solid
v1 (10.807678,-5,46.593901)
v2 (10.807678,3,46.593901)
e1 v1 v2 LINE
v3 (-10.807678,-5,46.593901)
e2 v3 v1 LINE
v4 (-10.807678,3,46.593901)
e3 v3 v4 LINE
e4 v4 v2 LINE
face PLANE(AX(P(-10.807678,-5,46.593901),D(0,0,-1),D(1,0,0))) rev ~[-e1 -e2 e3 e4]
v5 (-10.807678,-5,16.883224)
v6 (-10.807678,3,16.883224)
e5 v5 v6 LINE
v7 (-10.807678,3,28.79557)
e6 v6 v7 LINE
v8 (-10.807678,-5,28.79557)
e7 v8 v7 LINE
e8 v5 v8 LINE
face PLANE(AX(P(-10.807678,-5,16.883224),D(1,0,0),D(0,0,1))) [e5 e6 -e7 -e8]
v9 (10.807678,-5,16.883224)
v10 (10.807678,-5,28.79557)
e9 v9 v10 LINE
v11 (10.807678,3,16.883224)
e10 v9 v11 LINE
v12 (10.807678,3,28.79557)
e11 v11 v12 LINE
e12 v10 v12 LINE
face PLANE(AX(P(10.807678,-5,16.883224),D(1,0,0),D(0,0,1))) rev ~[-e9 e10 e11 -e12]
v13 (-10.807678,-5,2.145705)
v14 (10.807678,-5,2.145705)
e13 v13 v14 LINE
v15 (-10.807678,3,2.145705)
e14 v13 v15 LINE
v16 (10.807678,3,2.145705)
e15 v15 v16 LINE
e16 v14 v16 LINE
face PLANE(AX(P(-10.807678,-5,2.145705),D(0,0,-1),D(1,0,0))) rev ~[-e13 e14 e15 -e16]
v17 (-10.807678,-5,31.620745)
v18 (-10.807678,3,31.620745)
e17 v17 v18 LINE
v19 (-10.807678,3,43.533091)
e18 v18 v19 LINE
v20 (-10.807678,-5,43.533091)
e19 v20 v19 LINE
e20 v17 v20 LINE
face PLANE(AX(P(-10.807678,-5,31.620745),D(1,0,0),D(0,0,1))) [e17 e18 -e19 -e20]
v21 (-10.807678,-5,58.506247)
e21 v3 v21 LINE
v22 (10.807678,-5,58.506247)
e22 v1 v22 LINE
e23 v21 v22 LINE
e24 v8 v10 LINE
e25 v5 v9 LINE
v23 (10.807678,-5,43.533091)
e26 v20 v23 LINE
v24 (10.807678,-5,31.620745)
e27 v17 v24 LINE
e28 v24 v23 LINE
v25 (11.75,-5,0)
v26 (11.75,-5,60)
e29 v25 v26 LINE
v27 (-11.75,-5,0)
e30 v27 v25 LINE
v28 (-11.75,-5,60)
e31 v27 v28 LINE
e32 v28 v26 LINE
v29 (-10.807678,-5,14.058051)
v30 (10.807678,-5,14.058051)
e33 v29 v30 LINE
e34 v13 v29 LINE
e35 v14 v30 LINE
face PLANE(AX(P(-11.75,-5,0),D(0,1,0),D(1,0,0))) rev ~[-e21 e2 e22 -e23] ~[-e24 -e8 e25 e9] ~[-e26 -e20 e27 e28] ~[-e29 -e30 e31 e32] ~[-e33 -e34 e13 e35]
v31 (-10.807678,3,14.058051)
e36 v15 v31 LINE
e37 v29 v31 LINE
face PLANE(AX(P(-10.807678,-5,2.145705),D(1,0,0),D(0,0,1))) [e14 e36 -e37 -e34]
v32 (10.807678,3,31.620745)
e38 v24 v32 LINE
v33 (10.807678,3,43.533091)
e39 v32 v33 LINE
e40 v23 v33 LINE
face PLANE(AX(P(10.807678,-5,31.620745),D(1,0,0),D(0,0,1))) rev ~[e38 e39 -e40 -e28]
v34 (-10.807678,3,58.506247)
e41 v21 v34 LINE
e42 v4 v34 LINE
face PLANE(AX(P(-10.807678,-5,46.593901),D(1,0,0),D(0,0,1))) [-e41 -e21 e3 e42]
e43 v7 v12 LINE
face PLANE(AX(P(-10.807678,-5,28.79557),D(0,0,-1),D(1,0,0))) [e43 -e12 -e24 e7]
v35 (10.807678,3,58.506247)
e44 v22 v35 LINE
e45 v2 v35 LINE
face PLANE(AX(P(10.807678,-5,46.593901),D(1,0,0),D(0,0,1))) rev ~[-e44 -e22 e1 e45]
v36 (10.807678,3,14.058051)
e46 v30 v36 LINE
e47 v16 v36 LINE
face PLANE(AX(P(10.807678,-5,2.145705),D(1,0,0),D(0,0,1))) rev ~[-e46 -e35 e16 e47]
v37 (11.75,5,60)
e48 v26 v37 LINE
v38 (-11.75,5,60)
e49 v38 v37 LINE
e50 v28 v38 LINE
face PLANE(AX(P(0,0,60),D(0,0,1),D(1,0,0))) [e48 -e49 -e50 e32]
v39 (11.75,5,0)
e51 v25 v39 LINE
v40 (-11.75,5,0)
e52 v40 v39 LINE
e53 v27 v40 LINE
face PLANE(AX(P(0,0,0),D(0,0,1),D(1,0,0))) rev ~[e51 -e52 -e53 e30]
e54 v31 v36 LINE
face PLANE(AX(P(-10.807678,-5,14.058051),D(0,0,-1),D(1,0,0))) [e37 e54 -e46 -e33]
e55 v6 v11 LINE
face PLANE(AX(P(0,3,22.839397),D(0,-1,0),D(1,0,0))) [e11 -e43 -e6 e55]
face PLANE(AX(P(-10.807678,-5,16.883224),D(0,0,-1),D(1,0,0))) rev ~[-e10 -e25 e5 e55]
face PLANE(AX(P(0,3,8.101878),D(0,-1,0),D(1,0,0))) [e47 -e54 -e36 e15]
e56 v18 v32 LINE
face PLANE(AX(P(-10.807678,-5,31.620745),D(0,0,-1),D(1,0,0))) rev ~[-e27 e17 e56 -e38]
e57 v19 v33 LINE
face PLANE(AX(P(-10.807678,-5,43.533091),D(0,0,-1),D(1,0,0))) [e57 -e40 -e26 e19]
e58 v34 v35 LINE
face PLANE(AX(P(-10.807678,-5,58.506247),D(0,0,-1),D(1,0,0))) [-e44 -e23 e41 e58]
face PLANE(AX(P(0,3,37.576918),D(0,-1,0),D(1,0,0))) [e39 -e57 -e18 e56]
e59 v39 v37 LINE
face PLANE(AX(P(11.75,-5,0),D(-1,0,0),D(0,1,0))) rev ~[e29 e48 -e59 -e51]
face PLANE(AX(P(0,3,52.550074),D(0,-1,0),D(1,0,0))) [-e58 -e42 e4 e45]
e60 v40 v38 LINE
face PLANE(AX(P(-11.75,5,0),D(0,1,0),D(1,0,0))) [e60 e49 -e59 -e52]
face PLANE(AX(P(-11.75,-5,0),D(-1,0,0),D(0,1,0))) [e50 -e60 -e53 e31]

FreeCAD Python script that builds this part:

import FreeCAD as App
import Part
import Sketcher

V = App.Vector
Q = App.Units.Quantity

doc = App.newDocument("Part")
params = doc.addObject("Spreadsheet::Sheet", "Params")
for row, (alias, value) in enumerate([
    ("sketch1_height", "10 mm"),
    ("sketch1_width", "23.5 mm"),
    ("pad1_length", "60 mm"),
    ("pocket1_length", "8 mm"),
], start=1):
    params.set(f"A{row}", alias)
    params.set(f"B{row}", "=" + value)
    params.setAlias(f"B{row}", alias)

body = doc.addObject("PartDesign::Body", "Body")

sketch1 = doc.addObject("Sketcher::SketchObject", "Sketch")
body.addObject(sketch1)
sketch1.AttachmentSupport = (doc.XY_Plane, [""])
sketch1.MapMode = "FlatFace"
sketch1.addGeometry([
    Part.LineSegment(V(-12, 5, 0), V(-12, -5, 0)),
    Part.LineSegment(V(-12, -5, 0), V(12, -5, 0)),
    Part.LineSegment(V(12, -5, 0), V(12, 5, 0)),
    Part.LineSegment(V(12, 5, 0), V(-12, 5, 0)),
], False)
sketch1.addConstraint([
    Sketcher.Constraint("Coincident", 0, 2, 1, 1),
    Sketcher.Constraint("Coincident", 1, 2, 2, 1),
    Sketcher.Constraint("Coincident", 2, 2, 3, 1),
    Sketcher.Constraint("Coincident", 3, 2, 0, 1),
    Sketcher.Constraint("Vertical", 0),
    Sketcher.Constraint("Horizontal", 1),
    Sketcher.Constraint("Vertical", 2),
    Sketcher.Constraint("Horizontal", 3),
    Sketcher.Constraint("Symmetric", 0, 2, 2, 2, -1, 1),
    Sketcher.Constraint("DistanceY", 0, 2, 0, 1, Q("10 mm")),
    Sketcher.Constraint("DistanceX", 1, 1, 1, 2, Q("23.5 mm")),
])
sketch1.setExpression("Constraints[9]", "Params.sketch1_height")
sketch1.setExpression("Constraints[10]", "Params.sketch1_width")
pad1 = doc.addObject("PartDesign::Pad", "Pad")
body.addObject(pad1)
pad1.Profile = sketch1
pad1.setExpression("Length", "Params.pad1_length")

sketch2 = doc.addObject("Sketcher::SketchObject", "Sketch001")
body.addObject(sketch2)
sketch2.AttachmentSupport = (doc.XZ_Plane, [""])
sketch2.MapMode = "FlatFace"
sketch2.AttachmentOffset = App.Placement(V(0, 0, 5), App.Rotation())
sketch2.addGeometry([
    Part.LineSegment(V(-11, 59, 0), V(-11, 47, 0)),
    Part.LineSegment(V(-11, 47, 0), V(11, 47, 0)),
    Part.LineSegment(V(11, 47, 0), V(11, 59, 0)),
    Part.LineSegment(V(11, 59, 0), V(-11, 59, 0)),
    Part.LineSegment(V(-11, 44, 0), V(-11, 32, 0)),
    Part.LineSegment(V(-11, 32, 0), V(11, 32, 0)),
    Part.LineSegment(V(11, 32, 0), V(11, 44, 0)),
    Part.LineSegment(V(11, 44, 0), V(-11, 44, 0)),
    Part.LineSegment(V(-11, 29, 0), V(-11, 17, 0)),
    Part.LineSegment(V(-11, 17, 0), V(11, 17, 0)),
    Part.LineSegment(V(11, 17, 0), V(11, 29, 0)),
    Part.LineSegment(V(11, 29, 0), V(-11, 29, 0)),
    Part.LineSegment(V(-11, 14, 0), V(-11, 2, 0)),
    Part.LineSegment(V(-11, 2, 0), V(11, 2, 0)),
    Part.LineSegment(V(11, 2, 0), V(11, 14, 0)),
    Part.LineSegment(V(11, 14, 0), V(-11, 14, 0)),
], False)
sketch2.addConstraint([
    Sketcher.Constraint("Coincident", 0, 2, 1, 1),
    Sketcher.Constraint("Coincident", 1, 2, 2, 1),
    Sketcher.Constraint("Coincident", 2, 2, 3, 1),
    Sketcher.Constraint("Coincident", 3, 2, 0, 1),
    Sketcher.Constraint("Coincident", 4, 2, 5, 1),
    Sketcher.Constraint("Coincident", 5, 2, 6, 1),
    Sketcher.Constraint("Coincident", 6, 2, 7, 1),
    Sketcher.Constraint("Coincident", 7, 2, 4, 1),
    Sketcher.Constraint("Coincident", 8, 2, 9, 1),
    Sketcher.Constraint("Coincident", 9, 2, 10, 1),
    Sketcher.Constraint("Coincident", 10, 2, 11, 1),
    Sketcher.Constraint("Coincident", 11, 2, 8, 1),
    Sketcher.Constraint("Coincident", 12, 2, 13, 1),
    Sketcher.Constraint("Coincident", 13, 2, 14, 1),
    Sketcher.Constraint("Coincident", 14, 2, 15, 1),
    Sketcher.Constraint("Coincident", 15, 2, 12, 1),
    Sketcher.Constraint("Vertical", 0),
    Sketcher.Constraint("Horizontal", 1),
    Sketcher.Constraint("Vertical", 2),
    Sketcher.Constraint("Horizontal", 3),
    Sketcher.Constraint("Vertical", 4),
    Sketcher.Constraint("Horizontal", 5),
    Sketcher.Constraint("Vertical", 6),
    Sketcher.Constraint("Horizontal", 7),
    Sketcher.Constraint("Vertical", 8),
    Sketcher.Constraint("Horizontal", 9),
    Sketcher.Constraint("Vertical", 10),
    Sketcher.Constraint("Horizontal", 11),
    Sketcher.Constraint("Vertical", 12),
    Sketcher.Constraint("Horizontal", 13),
    Sketcher.Constraint("Vertical", 14),
    Sketcher.Constraint("Horizontal", 15),
    Sketcher.Constraint("Vertical", 3, 2, 4, 2),
    Sketcher.Constraint("Vertical", 2, 2, 5, 2),
    Sketcher.Constraint("Vertical", 7, 2, 8, 2),
    Sketcher.Constraint("Vertical", 6, 2, 9, 2),
    Sketcher.Constraint("Vertical", 11, 2, 12, 2),
    Sketcher.Constraint("Vertical", 10, 2, 13, 2),
    Sketcher.Constraint("Equal", 2, 4),
    Sketcher.Constraint("Equal", 6, 8),
    Sketcher.Constraint("Equal", 10, 12),
    Sketcher.Constraint("DistanceY", -1, 1, 0, 2, Q("46.593901 mm")),
    Sketcher.Constraint("DistanceX", 1, 1, 1, 2, Q("21.615356 mm")),
    Sketcher.Constraint("DistanceY", 0, 2, 0, 1, Q("11.912346 mm")),
    Sketcher.Constraint("DistanceY", -1, 1, 6, 2, Q("43.533091 mm")),
    Sketcher.Constraint("DistanceY", -1, 1, 10, 2, Q("28.79557 mm")),
    Sketcher.Constraint("DistanceY", -1, 1, 14, 2, Q("14.058051 mm")),
    Sketcher.Constraint("DistanceX", 0, 2, -1, 1, Q("10.807678 mm")),
])
pocket1 = doc.addObject("PartDesign::Pocket", "Pocket")
body.addObject(pocket1)
pocket1.Profile = sketch2
pocket1.setExpression("Length", "Params.pocket1_length")

doc.recompute()
